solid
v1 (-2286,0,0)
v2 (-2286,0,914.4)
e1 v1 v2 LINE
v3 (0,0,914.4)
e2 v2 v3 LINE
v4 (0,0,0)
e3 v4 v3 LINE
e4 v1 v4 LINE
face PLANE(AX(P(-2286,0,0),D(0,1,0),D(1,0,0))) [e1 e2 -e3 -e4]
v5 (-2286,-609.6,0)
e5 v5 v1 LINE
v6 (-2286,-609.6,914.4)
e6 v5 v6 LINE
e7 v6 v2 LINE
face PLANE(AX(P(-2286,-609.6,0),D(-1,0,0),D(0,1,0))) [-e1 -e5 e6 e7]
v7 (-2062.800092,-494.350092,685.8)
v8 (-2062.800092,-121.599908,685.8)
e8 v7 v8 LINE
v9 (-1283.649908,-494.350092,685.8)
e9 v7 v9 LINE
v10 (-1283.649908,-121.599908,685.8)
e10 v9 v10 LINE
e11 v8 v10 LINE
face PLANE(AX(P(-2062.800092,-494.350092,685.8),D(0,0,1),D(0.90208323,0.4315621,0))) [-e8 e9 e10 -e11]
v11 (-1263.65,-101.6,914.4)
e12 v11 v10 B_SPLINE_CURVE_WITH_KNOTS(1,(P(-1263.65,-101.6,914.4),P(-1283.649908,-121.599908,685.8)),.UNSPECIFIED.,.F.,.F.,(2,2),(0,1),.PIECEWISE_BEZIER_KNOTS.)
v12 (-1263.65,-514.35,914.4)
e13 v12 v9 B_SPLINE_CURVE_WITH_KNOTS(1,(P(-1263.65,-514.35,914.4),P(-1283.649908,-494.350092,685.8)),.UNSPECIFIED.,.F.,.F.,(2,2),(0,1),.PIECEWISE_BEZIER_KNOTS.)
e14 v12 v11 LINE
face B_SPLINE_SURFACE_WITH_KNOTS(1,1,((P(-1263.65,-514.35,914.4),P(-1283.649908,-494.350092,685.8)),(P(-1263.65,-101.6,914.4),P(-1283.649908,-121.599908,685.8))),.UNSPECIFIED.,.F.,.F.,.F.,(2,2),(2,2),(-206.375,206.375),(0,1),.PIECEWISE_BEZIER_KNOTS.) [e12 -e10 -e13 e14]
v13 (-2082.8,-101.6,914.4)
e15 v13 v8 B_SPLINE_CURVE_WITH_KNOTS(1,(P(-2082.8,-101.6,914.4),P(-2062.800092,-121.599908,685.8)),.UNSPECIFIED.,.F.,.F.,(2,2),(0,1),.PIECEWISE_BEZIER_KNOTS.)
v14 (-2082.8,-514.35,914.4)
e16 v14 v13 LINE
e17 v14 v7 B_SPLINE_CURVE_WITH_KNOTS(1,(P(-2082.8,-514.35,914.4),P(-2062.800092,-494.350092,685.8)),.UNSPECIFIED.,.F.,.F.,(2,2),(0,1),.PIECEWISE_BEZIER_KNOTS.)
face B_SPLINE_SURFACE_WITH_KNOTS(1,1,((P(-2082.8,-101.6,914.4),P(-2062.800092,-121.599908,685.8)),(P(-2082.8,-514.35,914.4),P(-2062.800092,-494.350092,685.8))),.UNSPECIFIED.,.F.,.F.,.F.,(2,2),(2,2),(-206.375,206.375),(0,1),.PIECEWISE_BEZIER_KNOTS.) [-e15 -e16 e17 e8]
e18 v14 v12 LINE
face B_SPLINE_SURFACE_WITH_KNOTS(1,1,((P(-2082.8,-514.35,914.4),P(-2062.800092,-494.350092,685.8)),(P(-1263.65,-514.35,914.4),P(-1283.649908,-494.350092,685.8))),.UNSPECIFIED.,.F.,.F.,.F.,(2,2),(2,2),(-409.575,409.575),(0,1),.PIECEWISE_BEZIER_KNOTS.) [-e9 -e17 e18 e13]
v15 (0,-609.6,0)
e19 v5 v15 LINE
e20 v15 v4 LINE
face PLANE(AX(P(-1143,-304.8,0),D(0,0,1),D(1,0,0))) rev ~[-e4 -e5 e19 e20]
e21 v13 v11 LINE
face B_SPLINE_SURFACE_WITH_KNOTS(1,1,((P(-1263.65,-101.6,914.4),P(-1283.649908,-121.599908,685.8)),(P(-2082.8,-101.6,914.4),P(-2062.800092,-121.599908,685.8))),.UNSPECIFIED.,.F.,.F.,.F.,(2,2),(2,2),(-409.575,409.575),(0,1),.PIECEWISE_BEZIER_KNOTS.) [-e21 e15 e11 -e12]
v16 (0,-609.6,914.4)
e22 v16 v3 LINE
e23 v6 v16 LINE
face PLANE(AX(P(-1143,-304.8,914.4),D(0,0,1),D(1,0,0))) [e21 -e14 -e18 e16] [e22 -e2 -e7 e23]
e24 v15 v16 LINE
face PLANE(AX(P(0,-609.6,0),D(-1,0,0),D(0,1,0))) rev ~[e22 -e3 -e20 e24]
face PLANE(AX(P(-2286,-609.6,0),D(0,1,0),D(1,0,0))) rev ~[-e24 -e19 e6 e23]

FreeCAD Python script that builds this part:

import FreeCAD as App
import Part
import Sketcher

V = App.Vector
Q = App.Units.Quantity


def add_polygon(sketch, points):
    """Adds a closed chain of lines whose ends are joined by coincident constraints."""
    first, n = sketch.GeometryCount, len(points)
    for a, b in zip(points, points[1:] + points[:1]):
        sketch.addGeometry(Part.LineSegment(App.Vector(*a, 0), App.Vector(*b, 0)), False)
    for i in range(n):
        sketch.addConstraint(Sketcher.Constraint("Coincident", first + i, 2, first + (i + 1) % n, 1))

doc = App.newDocument("Part")
params = doc.addObject("Spreadsheet::Sheet", "Params")
for row, (alias, value) in enumerate([
    ("sketch1_width", "90 in"),
    ("sketch1_height", "24 in"),
    ("pad1_length", "36 in"),
    ("sketch2_width", "32.25 in"),
    ("sketch2_height", "16.25 in"),
    ("pocket1_length", "9 in"),
    ("pocket1_taper", "-5 deg"),
], start=1):
    params.set(f"A{row}", alias)
    params.set(f"B{row}", "=" + value)
    params.setAlias(f"B{row}", alias)

body = doc.addObject("PartDesign::Body", "Body")

# Sketch on XY plane
sketch1 = doc.addObject("Sketcher::SketchObject", "Sketch")
body.addObject(sketch1)
sketch1.AttachmentSupport = (doc.XY_Plane, [""])
sketch1.MapMode = "FlatFace"
add_polygon(sketch1, [(-2286, 0), (-2286, -610), (0, -610), (0, 0)])  # lines 0-3
sketch1.addConstraint([
    Sketcher.Constraint("Vertical", 0),
    Sketcher.Constraint("Horizontal", 1),
    Sketcher.Constraint("Vertical", 2),
    Sketcher.Constraint("Horizontal", 3),
    Sketcher.Constraint("Coincident", 2, 2, -1, 1),
    Sketcher.Constraint("DistanceX", 1, 1, 1, 2, Q("90 in")),
    Sketcher.Constraint("DistanceY", 0, 2, 0, 1, Q("24 in")),
])
sketch1.setExpression("Constraints[9]", "Params.sketch1_width")
sketch1.setExpression("Constraints[10]", "Params.sketch1_height")
pad1 = doc.addObject("PartDesign::Pad", "Pad")
body.addObject(pad1)
pad1.Profile = sketch1
pad1.setExpression("Length", "Params.pad1_length")

# Sketch on XY plane
sketch2 = doc.addObject("Sketcher::SketchObject", "Sketch001")
body.addObject(sketch2)
sketch2.AttachmentSupport = (doc.XY_Plane, [""])
sketch2.MapMode = "FlatFace"
sketch2.AttachmentOffset = App.Placement(V(0, 0, 36 * 25.4), App.Rotation())
add_polygon(sketch2, [(-2083, -102), (-2083, -514), (-1264, -514), (-1264, -102)])  # lines 0-3
sketch2.addConstraint([
    Sketcher.Constraint("Vertical", 0),
    Sketcher.Constraint("Horizontal", 1),
    Sketcher.Constraint("Vertical", 2),
    Sketcher.Constraint("Horizontal", 3),
    Sketcher.Constraint("DistanceX", 0, 2, -1, 1, Q("82 in")),
    Sketcher.Constraint("DistanceY", 2, 2, -1, 1, Q("4 in")),
    Sketcher.Constraint("DistanceX", 1, 1, 1, 2, Q("32.25 in")),
    Sketcher.Constraint("DistanceY", 0, 2, 0, 1, Q("16.25 in")),
])
sketch2.setExpression("Constraints[10]", "Params.sketch2_width")
sketch2.setExpression("Constraints[11]", "Params.sketch2_height")
pocket1 = doc.addObject("PartDesign::Pocket", "Pocket")
body.addObject(pocket1)
pocket1.Profile = sketch2
pocket1.setExpression("Length", "Params.pocket1_length")
pocket1.setExpression("TaperAngle", "Params.pocket1_taper")

doc.recompute()
